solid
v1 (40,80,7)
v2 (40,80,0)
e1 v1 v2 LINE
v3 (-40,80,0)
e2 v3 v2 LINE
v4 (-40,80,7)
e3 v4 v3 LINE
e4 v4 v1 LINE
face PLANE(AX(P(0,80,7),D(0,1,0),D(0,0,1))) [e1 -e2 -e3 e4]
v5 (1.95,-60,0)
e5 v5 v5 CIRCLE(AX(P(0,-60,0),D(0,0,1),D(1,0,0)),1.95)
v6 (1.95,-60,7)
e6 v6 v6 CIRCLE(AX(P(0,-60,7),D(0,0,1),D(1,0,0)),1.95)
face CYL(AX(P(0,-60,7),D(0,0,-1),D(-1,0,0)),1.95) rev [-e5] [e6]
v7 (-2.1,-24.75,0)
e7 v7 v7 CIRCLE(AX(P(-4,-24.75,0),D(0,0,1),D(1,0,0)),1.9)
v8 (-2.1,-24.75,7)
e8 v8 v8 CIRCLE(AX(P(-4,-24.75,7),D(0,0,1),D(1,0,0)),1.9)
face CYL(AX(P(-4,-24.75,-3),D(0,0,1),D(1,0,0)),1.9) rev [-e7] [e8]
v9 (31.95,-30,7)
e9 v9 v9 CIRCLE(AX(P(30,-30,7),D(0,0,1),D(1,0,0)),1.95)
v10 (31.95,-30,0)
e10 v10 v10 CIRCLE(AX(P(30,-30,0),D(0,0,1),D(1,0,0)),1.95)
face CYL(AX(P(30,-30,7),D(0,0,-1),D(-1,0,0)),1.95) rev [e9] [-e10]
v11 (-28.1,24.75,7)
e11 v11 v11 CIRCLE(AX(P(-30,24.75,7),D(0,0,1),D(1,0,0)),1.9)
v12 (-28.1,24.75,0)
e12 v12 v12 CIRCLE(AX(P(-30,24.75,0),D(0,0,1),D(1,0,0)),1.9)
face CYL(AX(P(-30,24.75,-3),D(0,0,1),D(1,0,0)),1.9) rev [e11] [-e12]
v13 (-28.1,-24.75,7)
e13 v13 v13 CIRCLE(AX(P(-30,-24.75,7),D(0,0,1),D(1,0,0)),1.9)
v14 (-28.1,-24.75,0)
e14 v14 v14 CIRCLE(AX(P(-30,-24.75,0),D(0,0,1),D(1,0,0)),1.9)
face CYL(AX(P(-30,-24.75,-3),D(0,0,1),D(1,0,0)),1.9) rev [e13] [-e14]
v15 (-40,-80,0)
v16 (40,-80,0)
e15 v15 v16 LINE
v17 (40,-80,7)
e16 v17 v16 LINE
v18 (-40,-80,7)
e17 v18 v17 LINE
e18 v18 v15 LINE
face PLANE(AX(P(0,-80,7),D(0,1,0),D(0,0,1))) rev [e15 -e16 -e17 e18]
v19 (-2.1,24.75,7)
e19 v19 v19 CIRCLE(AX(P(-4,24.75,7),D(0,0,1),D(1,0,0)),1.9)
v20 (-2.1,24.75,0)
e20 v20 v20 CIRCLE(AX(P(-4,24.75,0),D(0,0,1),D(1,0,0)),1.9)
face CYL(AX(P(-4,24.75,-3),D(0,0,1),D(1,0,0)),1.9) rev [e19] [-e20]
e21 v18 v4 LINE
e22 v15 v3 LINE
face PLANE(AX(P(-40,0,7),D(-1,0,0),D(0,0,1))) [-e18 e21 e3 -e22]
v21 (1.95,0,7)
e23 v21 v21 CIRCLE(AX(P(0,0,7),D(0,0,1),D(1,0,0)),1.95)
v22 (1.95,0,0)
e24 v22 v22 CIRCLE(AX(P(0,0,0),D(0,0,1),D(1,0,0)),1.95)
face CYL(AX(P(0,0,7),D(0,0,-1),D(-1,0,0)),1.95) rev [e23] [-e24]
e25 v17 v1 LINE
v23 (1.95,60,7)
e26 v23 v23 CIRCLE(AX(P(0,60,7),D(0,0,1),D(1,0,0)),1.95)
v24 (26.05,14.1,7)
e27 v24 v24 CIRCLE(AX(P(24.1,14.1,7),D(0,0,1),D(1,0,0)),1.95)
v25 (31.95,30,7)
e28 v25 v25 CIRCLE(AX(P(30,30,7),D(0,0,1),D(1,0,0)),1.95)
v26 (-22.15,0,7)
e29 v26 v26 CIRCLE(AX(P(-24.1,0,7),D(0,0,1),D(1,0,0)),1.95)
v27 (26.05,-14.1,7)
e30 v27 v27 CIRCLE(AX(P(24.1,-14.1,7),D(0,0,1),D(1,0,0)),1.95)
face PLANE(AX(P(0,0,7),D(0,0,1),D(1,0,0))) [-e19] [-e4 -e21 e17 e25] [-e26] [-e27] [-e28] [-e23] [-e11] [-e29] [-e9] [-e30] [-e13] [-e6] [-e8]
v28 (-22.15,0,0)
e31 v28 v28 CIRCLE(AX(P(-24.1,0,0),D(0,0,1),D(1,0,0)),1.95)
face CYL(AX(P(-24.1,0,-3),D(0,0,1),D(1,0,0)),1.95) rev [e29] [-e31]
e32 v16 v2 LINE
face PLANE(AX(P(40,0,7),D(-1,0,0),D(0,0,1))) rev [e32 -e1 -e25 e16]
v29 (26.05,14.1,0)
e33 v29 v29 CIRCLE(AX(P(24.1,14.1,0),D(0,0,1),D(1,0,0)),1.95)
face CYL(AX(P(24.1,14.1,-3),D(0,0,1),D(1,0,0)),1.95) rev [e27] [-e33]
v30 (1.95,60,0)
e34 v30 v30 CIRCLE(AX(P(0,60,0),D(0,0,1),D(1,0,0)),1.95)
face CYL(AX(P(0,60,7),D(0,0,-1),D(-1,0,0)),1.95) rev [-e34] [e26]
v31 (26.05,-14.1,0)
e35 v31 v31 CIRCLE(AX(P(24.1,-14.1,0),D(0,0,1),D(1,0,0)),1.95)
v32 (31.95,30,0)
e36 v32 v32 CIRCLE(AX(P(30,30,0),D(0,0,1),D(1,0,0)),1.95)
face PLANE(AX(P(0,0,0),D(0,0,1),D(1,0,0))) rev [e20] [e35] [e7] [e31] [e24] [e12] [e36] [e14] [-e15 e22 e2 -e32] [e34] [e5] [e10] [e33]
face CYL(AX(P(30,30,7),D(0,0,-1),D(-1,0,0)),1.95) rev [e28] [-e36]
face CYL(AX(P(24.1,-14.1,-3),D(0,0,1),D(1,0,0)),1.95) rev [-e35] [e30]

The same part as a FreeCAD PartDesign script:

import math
import FreeCAD as App
import Part
import Sketcher

V = App.Vector
Q = App.Units.Quantity

doc = App.newDocument("Part")
body = doc.addObject("PartDesign::Body", "Body")

# Sketch on XY plane
sketch1 = body.newObject("Sketcher::SketchObject", "Sketch")
sketch1.AttachmentSupport = (doc.getObject("XY_Plane"), [""])
sketch1.MapMode = "FlatFace"
sketch1.addGeometry([
    Part.LineSegment(V(-40, 80, 0), V(-40, -80, 0)),  # 0
    Part.LineSegment(V(-40, -80, 0), V(40, -80, 0)),  # 1
    Part.LineSegment(V(40, -80, 0), V(40, 80, 0)),  # 2
    Part.LineSegment(V(40, 80, 0), V(-40, 80, 0)),  # 3
    Part.ArcOfCircle(Part.Circle(V(30, -30, 0), V(0, 0, 1), 1.9), math.radians(90), math.radians(270)),  # 4
    Part.ArcOfCircle(Part.Circle(V(30, -30, 0), V(0, 0, 1), 2), math.radians(0), math.radians(90)),  # 5
    Part.ArcOfCircle(Part.Circle(V(30, -30, 0), V(0, 0, 1), 2), math.radians(-90), math.radians(0)),  # 6
    Part.ArcOfCircle(Part.Circle(V(30, 30, 0), V(0, 0, 1), 1.9), math.radians(90), math.radians(270)),  # 7
    Part.ArcOfCircle(Part.Circle(V(30, 30, 0), V(0, 0, 1), 2), math.radians(0), math.radians(90)),  # 8
    Part.ArcOfCircle(Part.Circle(V(30, 30, 0), V(0, 0, 1), 2), math.radians(-90), math.radians(0)),  # 9
    Part.ArcOfCircle(Part.Circle(V(0, -60, 0), V(0, 0, 1), 1.9), math.radians(90), math.radians(270)),  # 10
    Part.ArcOfCircle(Part.Circle(V(0, -60, 0), V(0, 0, 1), 2), math.radians(0), math.radians(90)),  # 11
    Part.ArcOfCircle(Part.Circle(V(0, -60, 0), V(0, 0, 1), 2), math.radians(-90), math.radians(0)),  # 12
    Part.ArcOfCircle(Part.Circle(V(0, 0, 0), V(0, 0, 1), 1.9), math.radians(90), math.radians(270)),  # 13
    Part.ArcOfCircle(Part.Circle(V(0, 0, 0), V(0, 0, 1), 2), math.radians(0), math.radians(90)),  # 14
    Part.ArcOfCircle(Part.Circle(V(0, 0, 0), V(0, 0, 1), 2), math.radians(-90), math.radians(0)),  # 15
    Part.ArcOfCircle(Part.Circle(V(0, 60, 0), V(0, 0, 1), 1.9), math.radians(90), math.radians(270)),  # 16
    Part.ArcOfCircle(Part.Circle(V(0, 60, 0), V(0, 0, 1), 2), math.radians(0), math.radians(90)),  # 17
    Part.ArcOfCircle(Part.Circle(V(0, 60, 0), V(0, 0, 1), 2), math.radians(-90), math.radians(0)),  # 18
], False)
sketch1.addConstraint([
    Sketcher.Constraint("Coincident", 0, 2, 1, 1),
    Sketcher.Constraint("Coincident", 1, 2, 2, 1),
    Sketcher.Constraint("Coincident", 2, 2, 3, 1),
    Sketcher.Constraint("Coincident", 3, 2, 0, 1),
    Sketcher.Constraint("Tangent", 4, 1, 5, 2),
    Sketcher.Constraint("Tangent", 5, 1, 6, 2),
    Sketcher.Constraint("Tangent", 6, 1, 4, 2),
    Sketcher.Constraint("Tangent", 7, 1, 8, 2),
    Sketcher.Constraint("Tangent", 8, 1, 9, 2),
    Sketcher.Constraint("Tangent", 9, 1, 7, 2),
    Sketcher.Constraint("Tangent", 10, 1, 11, 2),
    Sketcher.Constraint("Tangent", 11, 1, 12, 2),
    Sketcher.Constraint("Tangent", 12, 1, 10, 2),
    Sketcher.Constraint("Tangent", 13, 1, 14, 2),
    Sketcher.Constraint("Tangent", 14, 1, 15, 2),
    Sketcher.Constraint("Tangent", 15, 1, 13, 2),
    Sketcher.Constraint("Tangent", 16, 1, 17, 2),
    Sketcher.Constraint("Tangent", 17, 1, 18, 2),
    Sketcher.Constraint("Tangent", 18, 1, 16, 2),
    Sketcher.Constraint("Vertical", 0),
    Sketcher.Constraint("Horizontal", 1),
    Sketcher.Constraint("Vertical", 2),
    Sketcher.Constraint("Horizontal", 3),
    Sketcher.Constraint("Coincident", 13, 3, -1, 1),
    Sketcher.Constraint("Equal", 6, 7),
    Sketcher.Constraint("Equal", 9, 10),
    Sketcher.Constraint("Equal", 12, 13),
    Sketcher.Constraint("Equal", 15, 16),
    Sketcher.Constraint("Symmetric", 10, 3, 16, 3, -1, 1),
    Sketcher.Constraint("Symmetric", 0, 2, 2, 2, -1, 1),
    Sketcher.Constraint("Symmetric", 4, 3, 7, 3, -1),
    Sketcher.Constraint("Symmetric", 11, 1, 17, 1, -1),
    Sketcher.Constraint("PointOnObject", 10, 1, -2),
    Sketcher.Constraint("PointOnObject", 12, 1, -2),
    Sketcher.Constraint("PointOnObject", 13, 1, -2),
    Sketcher.Constraint("PointOnObject", 14, 1, -1),
    Sketcher.Constraint("PointOnObject", 15, 1, -2),
    Sketcher.Constraint("PointOnObject", 16, 1, -2),
    Sketcher.Constraint("PointOnObject", 18, 1, -2),
    Sketcher.Constraint("Horizontal", 6, 3, 5, 1),
    Sketcher.Constraint("Horizontal", 9, 3, 8, 1),
    Sketcher.Constraint("Horizontal", 12, 3, 11, 1),
    Sketcher.Constraint("Vertical", 9, 3, 4, 1),
    Sketcher.Constraint("Vertical", 4, 1, 6, 1),
    Sketcher.Constraint("Vertical", 6, 1, 7, 1),
    Sketcher.Constraint("Vertical", 7, 1, 9, 1),
    Sketcher.Constraint("DistanceX", 1, 1, 1, 2, Q("80 mm")),
    Sketcher.Constraint("DistanceY", 0, 2, 0, 1, Q("160 mm")),
    Sketcher.Constraint("Radius", 4, Q("1.95 mm")),
    Sketcher.Constraint("DistanceX", -1, 1, 4, 3, Q("30 mm")),
    Sketcher.Constraint("DistanceY", 4, 3, -1, 1, Q("30 mm")),
    Sketcher.Constraint("DistanceY", 10, 3, -1, 1, Q("60 mm")),
])
pad1 = body.newObject("PartDesign::Pad", "Pad")
pad1.Profile = sketch1
pad1.Length = 7

# Sketch on XY plane
sketch2 = body.newObject("Sketcher::SketchObject", "Sketch001")
sketch2.AttachmentSupport = (doc.getObject("XY_Plane"), [""])
sketch2.MapMode = "FlatFace"
sketch2.AttachmentOffset = App.Placement(V(0, 0, 7), App.Rotation())
sketch2.addGeometry([
    Part.ArcOfCircle(Part.Circle(V(-30, 24.8, 0), V(0, 0, 1), 1.9), math.radians(0), math.radians(270)),  # 0
    Part.ArcOfCircle(Part.Circle(V(-30, 24.8, 0), V(0, 0, 1), 1.9), math.radians(-90), math.radians(0)),  # 1
    Part.ArcOfCircle(Part.Circle(V(-4, 24.8, 0), V(0, 0, 1), 1.9), math.radians(-180), math.radians(-90)),  # 2
    Part.ArcOfCircle(Part.Circle(V(-4, 24.8, 0), V(0, 0, 1), 1.9), math.radians(-90), math.radians(0)),  # 3
    Part.ArcOfCircle(Part.Circle(V(-4, 24.8, 0), V(0, 0, 1), 1.9), math.radians(0), math.radians(180)),  # 4
    Part.ArcOfCircle(Part.Circle(V(-30, -24.8, 0), V(0, 0, 1), 1.9), math.radians(0), math.radians(90)),  # 5
    Part.ArcOfCircle(Part.Circle(V(-30, -24.8, 0), V(0, 0, 1), 1.9), math.radians(90), math.radians(360)),  # 6
    Part.ArcOfCircle(Part.Circle(V(-4, -24.8, 0), V(0, 0, 1), 1.9), math.radians(90), math.radians(180)),  # 7
    Part.ArcOfCircle(Part.Circle(V(-4, -24.8, 0), V(0, 0, 1), 1.9), math.radians(180), math.radians(360)),  # 8
    Part.ArcOfCircle(Part.Circle(V(-4, -24.8, 0), V(0, 0, 1), 1.9), math.radians(0), math.radians(90)),  # 9
], False)
sketch2.addConstraint([
    Sketcher.Constraint("Tangent", 0, 1, 1, 2),
    Sketcher.Constraint("Coincident", 1, 1, 0, 2),
    Sketcher.Constraint("Tangent", 2, 2, 3, 1),
    Sketcher.Constraint("Tangent", 3, 2, 4, 1),
    Sketcher.Constraint("Tangent", 4, 2, 2, 1),
    Sketcher.Constraint("Tangent", 5, 1, 6, 2),
    Sketcher.Constraint("Coincident", 6, 1, 5, 2),
    Sketcher.Constraint("Tangent", 7, 2, 8, 1),
    Sketcher.Constraint("Tangent", 8, 2, 9, 1),
    Sketcher.Constraint("Tangent", 9, 2, 7, 1),
    Sketcher.Constraint("Equal", 1, 2),
    Sketcher.Constraint("Equal", 4, 5),
    Sketcher.Constraint("Equal", 6, 7),
    Sketcher.Constraint("Symmetric", 0, 3, 5, 3, -1),
    Sketcher.Constraint("Symmetric", 2, 3, 7, 3, -1),
    Sketcher.Constraint("Horizontal", 1, 3, 2, 3),
    Sketcher.Constraint("Horizontal", 4, 3, 0, 1),
    Sketcher.Constraint("Horizontal", 0, 1, 3, 2),
    Sketcher.Constraint("Horizontal", 3, 2, 4, 2),
    Sketcher.Constraint("Horizontal", 9, 3, 5, 1),
    Sketcher.Constraint("Horizontal", 5, 1, 7, 2),
    Sketcher.Constraint("Horizontal", 7, 2, 8, 2),
    Sketcher.Constraint("Vertical", 6, 3, 1, 1),
    Sketcher.Constraint("Vertical", 9, 3, 2, 2),
    Sketcher.Constraint("Vertical", 1, 1, 6, 1),
    Sketcher.Constraint("Vertical", 2, 2, 9, 2),
    Sketcher.Constraint("Radius", 0, Q("1.9 mm")),
    Sketcher.Constraint("DistanceX", 0, 3, -1, 1, Q("30 mm")),
    Sketcher.Constraint("DistanceX", 2, 3, -1, 1, Q("4 mm")),
    Sketcher.Constraint("DistanceY", 5, 3, 0, 3, Q("49.5 mm")),
])
pocket1 = body.newObject("PartDesign::Pocket", "Pocket")
pocket1.Profile = sketch2
pocket1.Length = 10

# Sketch on XY plane
sketch3 = body.newObject("Sketcher::SketchObject", "Sketch002")
sketch3.AttachmentSupport = (doc.getObject("XY_Plane"), [""])
sketch3.MapMode = "FlatFace"
sketch3.AttachmentOffset = App.Placement(V(0, 0, 7), App.Rotation())
sketch3.addGeometry([
    Part.ArcOfCircle(Part.Circle(V(-24.1, 0, 0), V(0, 0, 1), 1.9), math.radians(90), math.radians(270)),  # 0
    Part.ArcOfCircle(Part.Circle(V(-24.1, 0, 0), V(0, 0, 1), 2), math.radians(-90), math.radians(0)),  # 1
    Part.ArcOfCircle(Part.Circle(V(-24.1, 0, 0), V(0, 0, 1), 2), math.radians(0), math.radians(90)),  # 2
    Part.ArcOfCircle(Part.Circle(V(24.1, -14.1, 0), V(0, 0, 1), 2), math.radians(90), math.radians(180)),  # 3
    Part.ArcOfCircle(Part.Circle(V(24.1, -14.1, 0), V(0, 0, 1), 1.9), math.radians(180), math.radians(360)),  # 4
    Part.ArcOfCircle(Part.Circle(V(24.1, -14.1, 0), V(0, 0, 1), 2), math.radians(0), math.radians(90)),  # 5
    Part.ArcOfCircle(Part.Circle(V(24.1, 14.1, 0), V(0, 0, 1), 2), math.radians(-180), math.radians(-90)),  # 6
    Part.ArcOfCircle(Part.Circle(V(24.1, 14.1, 0), V(0, 0, 1), 2), math.radians(-90), math.radians(0)),  # 7
    Part.ArcOfCircle(Part.Circle(V(24.1, 14.1, 0), V(0, 0, 1), 1.9), math.radians(0), math.radians(180)),  # 8
], False)
sketch3.addConstraint([
    Sketcher.Constraint("Tangent", 0, 2, 1, 1),
    Sketcher.Constraint("Tangent", 1, 2, 2, 1),
    Sketcher.Constraint("Tangent", 2, 2, 0, 1),
    Sketcher.Constraint("Tangent", 3, 2, 4, 1),
    Sketcher.Constraint("Tangent", 4, 2, 5, 1),
    Sketcher.Constraint("Tangent", 5, 2, 3, 1),
    Sketcher.Constraint("Tangent", 6, 2, 7, 1),
    Sketcher.Constraint("Tangent", 7, 2, 8, 1),
    Sketcher.Constraint("Tangent", 8, 2, 6, 1),
    Sketcher.Constraint("Equal", 2, 3),
    Sketcher.Constraint("Equal", 5, 6),
    Sketcher.Constraint("Symmetric", 3, 3, 6, 3, -1),
    Sketcher.Constraint("Symmetric", 0, 2, 2, 2, -1),
    Sketcher.Constraint("PointOnObject", 1, 2, -1),
    Sketcher.Constraint("Horizontal", 5, 3, 3, 2),
    Sketcher.Constraint("Horizontal", 3, 2, 4, 2),
    Sketcher.Constraint("Horizontal", 8, 3, 7, 2),
    Sketcher.Constraint("Horizontal", 7, 2, 8, 2),
    Sketcher.Constraint("Vertical", 2, 3, 0, 2),
    Sketcher.Constraint("Vertical", 8, 3, 5, 2),
    Sketcher.Constraint("Vertical", 5, 2, 6, 2),
    Sketcher.Constraint("Radius", 0, Q("1.95 mm")),
    Sketcher.Constraint("DistanceX", 0, 3, -1, 1, Q("24.1 mm")),
    Sketcher.Constraint("DistanceX", -1, 1, 3, 3, Q("24.1 mm")),
    Sketcher.Constraint("DistanceY", 3, 3, -1, 1, Q("14.1 mm")),
])
pocket2 = body.newObject("PartDesign::Pocket", "Pocket001")
pocket2.Profile = sketch3
pocket2.Length = 10

doc.recompute()
